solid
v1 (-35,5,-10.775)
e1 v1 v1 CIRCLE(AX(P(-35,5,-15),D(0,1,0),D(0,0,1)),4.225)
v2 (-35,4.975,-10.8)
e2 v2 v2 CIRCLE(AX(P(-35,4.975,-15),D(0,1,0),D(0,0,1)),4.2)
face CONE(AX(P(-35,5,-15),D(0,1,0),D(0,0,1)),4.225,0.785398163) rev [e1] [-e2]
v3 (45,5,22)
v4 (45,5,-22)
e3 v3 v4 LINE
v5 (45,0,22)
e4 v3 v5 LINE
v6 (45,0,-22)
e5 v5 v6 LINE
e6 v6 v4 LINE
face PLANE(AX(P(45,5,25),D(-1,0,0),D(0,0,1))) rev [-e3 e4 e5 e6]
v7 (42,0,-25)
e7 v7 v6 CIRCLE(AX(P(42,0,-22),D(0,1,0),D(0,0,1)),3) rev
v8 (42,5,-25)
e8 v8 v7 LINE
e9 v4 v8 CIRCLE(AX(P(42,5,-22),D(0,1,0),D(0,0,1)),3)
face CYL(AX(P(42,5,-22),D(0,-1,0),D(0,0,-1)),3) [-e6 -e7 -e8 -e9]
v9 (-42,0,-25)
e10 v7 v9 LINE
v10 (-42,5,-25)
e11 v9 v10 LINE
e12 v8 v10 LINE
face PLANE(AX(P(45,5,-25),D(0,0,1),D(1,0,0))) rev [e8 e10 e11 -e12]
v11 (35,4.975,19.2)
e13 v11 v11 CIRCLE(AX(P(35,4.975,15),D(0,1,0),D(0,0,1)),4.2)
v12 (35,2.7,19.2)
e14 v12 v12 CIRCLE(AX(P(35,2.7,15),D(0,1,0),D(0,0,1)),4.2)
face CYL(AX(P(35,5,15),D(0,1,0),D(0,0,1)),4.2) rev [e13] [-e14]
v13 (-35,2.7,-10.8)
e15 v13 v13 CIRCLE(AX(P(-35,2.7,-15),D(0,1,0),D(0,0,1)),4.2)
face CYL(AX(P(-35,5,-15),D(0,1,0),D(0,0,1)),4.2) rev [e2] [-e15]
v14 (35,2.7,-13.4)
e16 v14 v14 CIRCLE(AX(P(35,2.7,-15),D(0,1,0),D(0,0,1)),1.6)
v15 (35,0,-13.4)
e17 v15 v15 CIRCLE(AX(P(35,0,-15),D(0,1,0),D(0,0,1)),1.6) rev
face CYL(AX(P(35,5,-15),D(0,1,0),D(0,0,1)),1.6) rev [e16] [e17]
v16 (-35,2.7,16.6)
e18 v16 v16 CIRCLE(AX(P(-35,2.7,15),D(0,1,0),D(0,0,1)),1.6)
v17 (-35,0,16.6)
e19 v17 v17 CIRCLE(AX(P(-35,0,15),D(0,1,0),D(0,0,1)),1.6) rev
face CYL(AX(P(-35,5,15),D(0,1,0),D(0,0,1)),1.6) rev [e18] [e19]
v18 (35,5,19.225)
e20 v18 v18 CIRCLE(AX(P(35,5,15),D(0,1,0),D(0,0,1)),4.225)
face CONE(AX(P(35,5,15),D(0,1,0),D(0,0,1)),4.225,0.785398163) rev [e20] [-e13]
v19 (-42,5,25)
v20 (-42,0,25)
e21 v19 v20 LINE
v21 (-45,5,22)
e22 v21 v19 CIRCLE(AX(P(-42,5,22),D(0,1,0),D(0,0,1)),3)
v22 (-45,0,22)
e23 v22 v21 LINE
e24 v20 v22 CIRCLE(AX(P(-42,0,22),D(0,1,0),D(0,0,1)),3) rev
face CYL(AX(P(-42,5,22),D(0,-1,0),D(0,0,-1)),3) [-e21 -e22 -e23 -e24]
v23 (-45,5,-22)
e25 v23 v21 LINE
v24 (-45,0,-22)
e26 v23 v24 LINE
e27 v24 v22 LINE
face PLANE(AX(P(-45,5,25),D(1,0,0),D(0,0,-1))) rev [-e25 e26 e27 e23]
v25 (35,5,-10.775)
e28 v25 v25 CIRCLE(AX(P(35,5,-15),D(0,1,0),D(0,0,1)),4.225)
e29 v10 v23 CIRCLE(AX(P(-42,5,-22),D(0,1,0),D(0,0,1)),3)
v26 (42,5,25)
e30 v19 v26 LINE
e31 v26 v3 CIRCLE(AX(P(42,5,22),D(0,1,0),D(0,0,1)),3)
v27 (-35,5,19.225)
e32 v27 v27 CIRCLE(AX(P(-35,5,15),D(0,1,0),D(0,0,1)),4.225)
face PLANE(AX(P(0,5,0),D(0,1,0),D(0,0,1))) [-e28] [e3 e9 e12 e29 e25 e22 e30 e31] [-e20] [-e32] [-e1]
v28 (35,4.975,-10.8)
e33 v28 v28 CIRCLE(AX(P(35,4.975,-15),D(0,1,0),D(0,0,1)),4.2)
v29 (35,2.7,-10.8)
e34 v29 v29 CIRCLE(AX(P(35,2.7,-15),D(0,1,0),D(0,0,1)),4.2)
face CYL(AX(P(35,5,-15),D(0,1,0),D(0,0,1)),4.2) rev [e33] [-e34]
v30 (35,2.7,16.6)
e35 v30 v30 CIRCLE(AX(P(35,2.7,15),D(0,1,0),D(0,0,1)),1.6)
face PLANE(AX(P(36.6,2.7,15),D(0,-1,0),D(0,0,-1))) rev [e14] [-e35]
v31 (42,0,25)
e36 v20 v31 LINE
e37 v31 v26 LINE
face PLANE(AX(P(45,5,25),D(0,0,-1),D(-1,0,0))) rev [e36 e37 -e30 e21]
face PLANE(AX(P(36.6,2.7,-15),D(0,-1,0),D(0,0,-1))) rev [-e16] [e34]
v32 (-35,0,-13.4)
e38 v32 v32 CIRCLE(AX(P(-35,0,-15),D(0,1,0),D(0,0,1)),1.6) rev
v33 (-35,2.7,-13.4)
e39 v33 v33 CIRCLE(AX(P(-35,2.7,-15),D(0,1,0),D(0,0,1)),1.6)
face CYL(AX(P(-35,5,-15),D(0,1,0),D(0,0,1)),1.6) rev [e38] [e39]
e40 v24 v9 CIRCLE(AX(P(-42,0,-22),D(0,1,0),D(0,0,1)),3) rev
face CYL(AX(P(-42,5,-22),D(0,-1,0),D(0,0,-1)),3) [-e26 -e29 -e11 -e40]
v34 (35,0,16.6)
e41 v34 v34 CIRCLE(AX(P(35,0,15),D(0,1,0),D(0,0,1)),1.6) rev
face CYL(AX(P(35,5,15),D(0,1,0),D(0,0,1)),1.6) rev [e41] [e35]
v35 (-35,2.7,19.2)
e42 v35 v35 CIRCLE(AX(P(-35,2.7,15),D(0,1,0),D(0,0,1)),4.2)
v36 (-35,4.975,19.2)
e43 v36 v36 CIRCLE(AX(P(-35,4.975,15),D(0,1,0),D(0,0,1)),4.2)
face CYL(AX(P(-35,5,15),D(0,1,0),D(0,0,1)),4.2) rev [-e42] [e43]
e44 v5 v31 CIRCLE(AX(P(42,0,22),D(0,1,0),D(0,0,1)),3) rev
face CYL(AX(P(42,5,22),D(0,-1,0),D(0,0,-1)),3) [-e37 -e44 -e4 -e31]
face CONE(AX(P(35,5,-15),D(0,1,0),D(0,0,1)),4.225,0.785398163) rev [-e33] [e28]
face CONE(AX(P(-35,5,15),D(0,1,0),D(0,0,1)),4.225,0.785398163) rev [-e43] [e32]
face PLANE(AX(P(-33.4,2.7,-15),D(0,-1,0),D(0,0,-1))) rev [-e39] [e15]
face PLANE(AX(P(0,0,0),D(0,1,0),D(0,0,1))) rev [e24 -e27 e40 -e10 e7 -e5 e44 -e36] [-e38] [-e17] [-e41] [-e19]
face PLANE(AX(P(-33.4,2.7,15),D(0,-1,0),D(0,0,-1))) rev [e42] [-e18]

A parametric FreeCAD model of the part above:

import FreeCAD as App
import Part
import Sketcher
from FreeCAD import Vector
Q = App.Units.Quantity


def edges_at(feature, points):
    """Names of the edges that pass closest to the given points."""
    edges = feature.Shape.Edges
    near = lambda p: min(range(len(edges)), key=lambda i: edges[i].distToShape(Part.Vertex(*p))[0])
    return sorted({f"Edge{near(p) + 1}" for p in points})


def add_polygon(sketch, points):
    """Adds a closed chain of lines whose ends are joined by coincident constraints."""
    first, n = sketch.GeometryCount, len(points)
    for a, b in zip(points, points[1:] + points[:1]):
        sketch.addGeometry(Part.LineSegment(App.Vector(*a, 0), App.Vector(*b, 0)), False)
    for i in range(n):
        sketch.addConstraint(Sketcher.Constraint("Coincident", first + i, 2, first + (i + 1) % n, 1))

doc = App.newDocument("Part")
body = doc.addObject("PartDesign::Body", "Body")

sketch1 = body.newObject("Sketcher::SketchObject", "Sketch")
sketch1.AttachmentSupport = (doc.getObject("XZ_Plane"), [""])
sketch1.MapMode = "FlatFace"
add_polygon(sketch1, [(-45, -25), (-45, 25), (45, 25), (45, -25)])
sketch1.addConstraint(Sketcher.Constraint("Vertical", 0))
sketch1.addConstraint(Sketcher.Constraint("Horizontal", 1))
sketch1.addConstraint(Sketcher.Constraint("Vertical", 2))
sketch1.addConstraint(Sketcher.Constraint("Horizontal", 3))
sketch1.addConstraint(Sketcher.Constraint("Symmetric", 0, 2, 2, 2, -1, 1))
sketch1.addConstraint(Sketcher.Constraint("DistanceX", 1, 1, 1, 2, Q("90 mm")))
sketch1.addConstraint(Sketcher.Constraint("DistanceY", 0, 1, 0, 2, Q("50 mm")))
pad1 = body.newObject("PartDesign::Pad", "Pad")
pad1.Profile = sketch1
pad1.Length = 5
pad1.Reversed = True
doc.recompute()

fillet = body.newObject("PartDesign::Fillet", "Fillet")
fillet.Base = (pad1, edges_at(pad1, [
    (-45, 2.5, -25),
    (45, 2.5, -25),
    (45, 2.5, 25),
    (-45, 2.5, 25),
]))
fillet.Radius = 3

sketch2 = body.newObject("Sketcher::SketchObject", "Sketch001")
sketch2.AttachmentSupport = (doc.getObject("YZ_Plane"), [""])
sketch2.MapMode = "FlatFace"
sketch2.AttachmentOffset = App.Placement(Vector(0, 0, -35), App.Rotation())
add_polygon(sketch2, [(-0.961, -15), (5, -15), (5, -10.775), (4.975, -10.8), (2.7, -10.8), (2.7, -13.4), (0, -13.4)])
sketch2.addGeometry(Part.LineSegment(Vector(5, -15, 0), Vector(-0.961, -15, 0)), True)
sketch2.addConstraint(Sketcher.Constraint("Horizontal", 0))
sketch2.addConstraint(Sketcher.Constraint("Vertical", 1))
sketch2.addConstraint(Sketcher.Constraint("Horizontal", 3))
sketch2.addConstraint(Sketcher.Constraint("Vertical", 4))
sketch2.addConstraint(Sketcher.Constraint("Horizontal", 5))
sketch2.addConstraint(Sketcher.Constraint("Horizontal", 7))
sketch2.addConstraint(Sketcher.Constraint("Coincident", 7, 1, 0, 2))
sketch2.addConstraint(Sketcher.Constraint("PointOnObject", 5, 2, -2))
sketch2.addConstraint(Sketcher.Constraint("Equal", 0, 7))
sketch2.addConstraint(Sketcher.Constraint("Angle", 2, Q("-135 deg")))
sketch2.addConstraint(Sketcher.Constraint("Angle", 6, Q("-121 deg")))
sketch2.addConstraint(Sketcher.Constraint("DistanceX", 5, 2, 5, 1, Q("2.7 mm")))
sketch2.addConstraint(Sketcher.Constraint("DistanceY", 4, 2, 4, 1, Q("2.6 mm")))
sketch2.addConstraint(Sketcher.Constraint("DistanceX", -1, 1, 0, 2, Q("5 mm")))
sketch2.addConstraint(Sketcher.Constraint("DistanceY", 0, 2, -1, 1, Q("15 mm")))
sketch2.addConstraint(Sketcher.Constraint("DistanceY", 2, 2, -1, 1, Q("10.8 mm")))
sketch2.addConstraint(Sketcher.Constraint("DistanceX", 3, 2, 3, 1, Q("2.275 mm")))
groove = body.newObject("PartDesign::Groove", "Groove")
groove.Profile = sketch2
groove.ReferenceAxis = (sketch2, ["Axis0"])
groove.Angle = 360
doc.recompute()

linearpattern = body.newObject("PartDesign::LinearPattern", "LinearPattern")
linearpattern.Originals = [groove]
linearpattern.Direction = (doc.getObject("Z_Axis"), [""])
linearpattern.Mode = "offset"
linearpattern.Offset = 30
linearpattern.Occurrences = 2
body.Tip = linearpattern
doc.recompute()

datumline = body.newObject("PartDesign::Line", "DatumLine")
datumline.Placement = App.Placement(Vector(0, 0, 0), App.Rotation(Vector(0, 0, 1), Vector(0.91914503, 0, 0.393919299)))
linearpattern2 = body.newObject("PartDesign::LinearPattern", "LinearPattern001")
linearpattern2.Originals = [groove]
linearpattern2.Direction = (datumline, [""])
linearpattern2.Mode = "offset"
linearpattern2.Offset = 76.157731
linearpattern2.Occurrences = 2
body.Tip = linearpattern2
doc.recompute()

linearpattern3 = body.newObject("PartDesign::LinearPattern", "LinearPattern002")
linearpattern3.Originals = [groove]
linearpattern3.Direction = (doc.getObject("X_Axis"), [""])
linearpattern3.Mode = "offset"
linearpattern3.Offset = 70
linearpattern3.Occurrences = 2
body.Tip = linearpattern3

doc.recompute()
